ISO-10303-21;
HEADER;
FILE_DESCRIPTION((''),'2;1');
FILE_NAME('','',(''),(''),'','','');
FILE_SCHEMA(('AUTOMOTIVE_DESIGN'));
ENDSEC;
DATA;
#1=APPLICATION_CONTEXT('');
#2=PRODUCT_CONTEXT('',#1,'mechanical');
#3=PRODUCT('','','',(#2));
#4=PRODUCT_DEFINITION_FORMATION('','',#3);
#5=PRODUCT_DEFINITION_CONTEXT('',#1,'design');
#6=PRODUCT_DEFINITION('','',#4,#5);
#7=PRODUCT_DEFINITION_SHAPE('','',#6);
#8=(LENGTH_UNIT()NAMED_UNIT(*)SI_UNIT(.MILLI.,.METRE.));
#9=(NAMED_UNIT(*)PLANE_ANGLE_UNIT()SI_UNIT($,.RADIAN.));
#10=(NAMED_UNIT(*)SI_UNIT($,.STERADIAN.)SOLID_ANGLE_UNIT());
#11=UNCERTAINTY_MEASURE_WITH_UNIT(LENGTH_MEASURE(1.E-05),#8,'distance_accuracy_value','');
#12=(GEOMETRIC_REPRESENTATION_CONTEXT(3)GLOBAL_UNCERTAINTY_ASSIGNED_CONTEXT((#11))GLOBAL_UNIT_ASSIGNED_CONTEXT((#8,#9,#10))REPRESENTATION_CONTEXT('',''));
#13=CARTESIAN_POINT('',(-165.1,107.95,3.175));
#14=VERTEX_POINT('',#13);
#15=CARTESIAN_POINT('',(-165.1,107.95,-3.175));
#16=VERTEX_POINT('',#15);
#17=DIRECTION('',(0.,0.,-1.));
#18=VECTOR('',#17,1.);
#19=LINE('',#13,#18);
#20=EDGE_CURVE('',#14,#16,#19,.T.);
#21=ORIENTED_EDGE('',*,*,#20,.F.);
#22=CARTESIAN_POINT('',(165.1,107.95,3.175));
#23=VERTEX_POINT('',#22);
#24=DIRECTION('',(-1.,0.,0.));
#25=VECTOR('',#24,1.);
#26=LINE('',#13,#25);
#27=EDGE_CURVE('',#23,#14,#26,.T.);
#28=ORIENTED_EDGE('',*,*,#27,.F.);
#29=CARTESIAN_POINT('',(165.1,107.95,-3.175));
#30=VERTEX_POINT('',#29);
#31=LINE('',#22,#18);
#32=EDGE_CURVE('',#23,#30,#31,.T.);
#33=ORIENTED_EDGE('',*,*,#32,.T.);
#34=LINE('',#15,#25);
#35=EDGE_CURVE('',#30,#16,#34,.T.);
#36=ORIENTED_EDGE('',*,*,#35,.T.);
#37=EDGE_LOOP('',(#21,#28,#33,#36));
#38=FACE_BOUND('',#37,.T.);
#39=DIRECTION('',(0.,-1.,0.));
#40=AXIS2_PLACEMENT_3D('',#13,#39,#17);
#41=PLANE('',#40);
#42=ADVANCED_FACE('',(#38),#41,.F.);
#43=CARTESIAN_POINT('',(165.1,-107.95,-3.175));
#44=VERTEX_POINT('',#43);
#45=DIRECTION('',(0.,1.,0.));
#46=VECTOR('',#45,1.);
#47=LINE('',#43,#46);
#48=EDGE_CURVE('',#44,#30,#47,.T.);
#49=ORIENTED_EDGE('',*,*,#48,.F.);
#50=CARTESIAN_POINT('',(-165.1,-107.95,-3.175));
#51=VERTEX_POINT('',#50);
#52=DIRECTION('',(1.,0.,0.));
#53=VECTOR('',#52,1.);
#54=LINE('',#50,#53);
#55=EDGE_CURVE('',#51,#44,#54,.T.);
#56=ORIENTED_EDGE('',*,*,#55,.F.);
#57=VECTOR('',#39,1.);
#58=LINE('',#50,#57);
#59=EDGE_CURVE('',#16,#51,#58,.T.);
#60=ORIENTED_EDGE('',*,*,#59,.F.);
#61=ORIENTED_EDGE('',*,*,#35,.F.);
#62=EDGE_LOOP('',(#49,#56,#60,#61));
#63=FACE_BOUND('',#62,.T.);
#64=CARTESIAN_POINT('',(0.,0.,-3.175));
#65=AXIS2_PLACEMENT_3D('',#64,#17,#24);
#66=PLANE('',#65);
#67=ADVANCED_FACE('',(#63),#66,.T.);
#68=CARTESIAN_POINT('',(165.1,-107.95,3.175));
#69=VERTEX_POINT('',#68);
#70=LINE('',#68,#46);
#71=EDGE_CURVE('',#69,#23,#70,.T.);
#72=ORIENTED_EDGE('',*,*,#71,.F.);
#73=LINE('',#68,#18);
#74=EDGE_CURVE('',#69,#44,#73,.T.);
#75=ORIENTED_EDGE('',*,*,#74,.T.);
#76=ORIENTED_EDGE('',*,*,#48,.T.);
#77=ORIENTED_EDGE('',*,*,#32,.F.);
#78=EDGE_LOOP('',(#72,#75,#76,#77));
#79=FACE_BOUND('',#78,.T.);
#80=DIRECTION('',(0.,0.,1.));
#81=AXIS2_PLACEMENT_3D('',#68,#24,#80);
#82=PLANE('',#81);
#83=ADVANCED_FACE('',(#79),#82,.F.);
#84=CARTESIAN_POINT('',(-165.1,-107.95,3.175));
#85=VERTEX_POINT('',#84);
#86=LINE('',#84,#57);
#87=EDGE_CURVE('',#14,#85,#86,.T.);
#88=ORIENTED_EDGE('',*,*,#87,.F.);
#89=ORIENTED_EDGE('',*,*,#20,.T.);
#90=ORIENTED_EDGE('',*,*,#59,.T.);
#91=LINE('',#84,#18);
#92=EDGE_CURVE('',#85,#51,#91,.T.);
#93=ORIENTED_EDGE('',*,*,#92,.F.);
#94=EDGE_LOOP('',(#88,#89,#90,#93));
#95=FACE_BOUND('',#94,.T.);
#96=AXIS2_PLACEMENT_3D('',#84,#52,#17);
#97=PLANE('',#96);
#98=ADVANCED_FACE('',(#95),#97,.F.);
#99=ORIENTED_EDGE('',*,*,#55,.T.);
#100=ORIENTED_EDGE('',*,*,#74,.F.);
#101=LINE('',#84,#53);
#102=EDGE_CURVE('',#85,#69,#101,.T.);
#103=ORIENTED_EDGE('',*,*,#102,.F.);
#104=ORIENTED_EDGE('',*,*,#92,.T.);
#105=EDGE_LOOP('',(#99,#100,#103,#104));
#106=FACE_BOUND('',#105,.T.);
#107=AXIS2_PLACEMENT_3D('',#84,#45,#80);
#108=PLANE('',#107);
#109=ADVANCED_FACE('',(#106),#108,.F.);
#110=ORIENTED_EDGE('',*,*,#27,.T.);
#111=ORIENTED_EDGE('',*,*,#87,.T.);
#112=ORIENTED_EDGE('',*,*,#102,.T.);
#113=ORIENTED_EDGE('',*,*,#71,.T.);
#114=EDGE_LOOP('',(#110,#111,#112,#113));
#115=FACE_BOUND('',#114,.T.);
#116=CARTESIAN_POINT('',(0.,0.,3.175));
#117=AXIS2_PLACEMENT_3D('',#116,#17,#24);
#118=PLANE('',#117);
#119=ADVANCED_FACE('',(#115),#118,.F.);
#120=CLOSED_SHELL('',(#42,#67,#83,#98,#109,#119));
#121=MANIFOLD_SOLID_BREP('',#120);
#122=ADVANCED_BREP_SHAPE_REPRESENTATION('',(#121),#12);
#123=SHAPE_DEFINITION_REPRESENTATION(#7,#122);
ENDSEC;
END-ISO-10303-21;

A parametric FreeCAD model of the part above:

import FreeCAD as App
import Part
import Sketcher

V = App.Vector
Q = App.Units.Quantity


def add_polygon(sketch, points):
    """Adds a closed chain of lines whose ends are joined by coincident constraints."""
    first, n = sketch.GeometryCount, len(points)
    for a, b in zip(points, points[1:] + points[:1]):
        sketch.addGeometry(Part.LineSegment(App.Vector(*a, 0), App.Vector(*b, 0)), False)
    for i in range(n):
        sketch.addConstraint(Sketcher.Constraint("Coincident", first + i, 2, first + (i + 1) % n, 1))

doc = App.newDocument("Part")
body = doc.addObject("PartDesign::Body", "Body")

sketch1 = body.newObject("Sketcher::SketchObject", "Sketch")
sketch1.AttachmentSupport = (doc.getObject("XY_Plane"), [""])
sketch1.MapMode = "FlatFace"
add_polygon(sketch1, [(-165.1, 107.95), (-165.1, -107.95), (165.1, -107.95), (165.1, 107.95)])
sketch1.addConstraint([
    Sketcher.Constraint("Vertical", 0),
    Sketcher.Constraint("Horizontal", 1),
    Sketcher.Constraint("Vertical", 2),
    Sketcher.Constraint("Horizontal", 3),
    Sketcher.Constraint("Symmetric", 0, 2, 2, 2, -1, 1),
    Sketcher.Constraint("DistanceX", 1, 1, 1, 2, Q("13 in")),
    Sketcher.Constraint("DistanceY", 0, 2, 0, 1, Q("8.5 in")),
])
pad1 = body.newObject("PartDesign::Pad", "Pad")
pad1.Profile = sketch1
pad1.Length = Q("0.25 in")
pad1.Midplane = True

doc.recompute()
